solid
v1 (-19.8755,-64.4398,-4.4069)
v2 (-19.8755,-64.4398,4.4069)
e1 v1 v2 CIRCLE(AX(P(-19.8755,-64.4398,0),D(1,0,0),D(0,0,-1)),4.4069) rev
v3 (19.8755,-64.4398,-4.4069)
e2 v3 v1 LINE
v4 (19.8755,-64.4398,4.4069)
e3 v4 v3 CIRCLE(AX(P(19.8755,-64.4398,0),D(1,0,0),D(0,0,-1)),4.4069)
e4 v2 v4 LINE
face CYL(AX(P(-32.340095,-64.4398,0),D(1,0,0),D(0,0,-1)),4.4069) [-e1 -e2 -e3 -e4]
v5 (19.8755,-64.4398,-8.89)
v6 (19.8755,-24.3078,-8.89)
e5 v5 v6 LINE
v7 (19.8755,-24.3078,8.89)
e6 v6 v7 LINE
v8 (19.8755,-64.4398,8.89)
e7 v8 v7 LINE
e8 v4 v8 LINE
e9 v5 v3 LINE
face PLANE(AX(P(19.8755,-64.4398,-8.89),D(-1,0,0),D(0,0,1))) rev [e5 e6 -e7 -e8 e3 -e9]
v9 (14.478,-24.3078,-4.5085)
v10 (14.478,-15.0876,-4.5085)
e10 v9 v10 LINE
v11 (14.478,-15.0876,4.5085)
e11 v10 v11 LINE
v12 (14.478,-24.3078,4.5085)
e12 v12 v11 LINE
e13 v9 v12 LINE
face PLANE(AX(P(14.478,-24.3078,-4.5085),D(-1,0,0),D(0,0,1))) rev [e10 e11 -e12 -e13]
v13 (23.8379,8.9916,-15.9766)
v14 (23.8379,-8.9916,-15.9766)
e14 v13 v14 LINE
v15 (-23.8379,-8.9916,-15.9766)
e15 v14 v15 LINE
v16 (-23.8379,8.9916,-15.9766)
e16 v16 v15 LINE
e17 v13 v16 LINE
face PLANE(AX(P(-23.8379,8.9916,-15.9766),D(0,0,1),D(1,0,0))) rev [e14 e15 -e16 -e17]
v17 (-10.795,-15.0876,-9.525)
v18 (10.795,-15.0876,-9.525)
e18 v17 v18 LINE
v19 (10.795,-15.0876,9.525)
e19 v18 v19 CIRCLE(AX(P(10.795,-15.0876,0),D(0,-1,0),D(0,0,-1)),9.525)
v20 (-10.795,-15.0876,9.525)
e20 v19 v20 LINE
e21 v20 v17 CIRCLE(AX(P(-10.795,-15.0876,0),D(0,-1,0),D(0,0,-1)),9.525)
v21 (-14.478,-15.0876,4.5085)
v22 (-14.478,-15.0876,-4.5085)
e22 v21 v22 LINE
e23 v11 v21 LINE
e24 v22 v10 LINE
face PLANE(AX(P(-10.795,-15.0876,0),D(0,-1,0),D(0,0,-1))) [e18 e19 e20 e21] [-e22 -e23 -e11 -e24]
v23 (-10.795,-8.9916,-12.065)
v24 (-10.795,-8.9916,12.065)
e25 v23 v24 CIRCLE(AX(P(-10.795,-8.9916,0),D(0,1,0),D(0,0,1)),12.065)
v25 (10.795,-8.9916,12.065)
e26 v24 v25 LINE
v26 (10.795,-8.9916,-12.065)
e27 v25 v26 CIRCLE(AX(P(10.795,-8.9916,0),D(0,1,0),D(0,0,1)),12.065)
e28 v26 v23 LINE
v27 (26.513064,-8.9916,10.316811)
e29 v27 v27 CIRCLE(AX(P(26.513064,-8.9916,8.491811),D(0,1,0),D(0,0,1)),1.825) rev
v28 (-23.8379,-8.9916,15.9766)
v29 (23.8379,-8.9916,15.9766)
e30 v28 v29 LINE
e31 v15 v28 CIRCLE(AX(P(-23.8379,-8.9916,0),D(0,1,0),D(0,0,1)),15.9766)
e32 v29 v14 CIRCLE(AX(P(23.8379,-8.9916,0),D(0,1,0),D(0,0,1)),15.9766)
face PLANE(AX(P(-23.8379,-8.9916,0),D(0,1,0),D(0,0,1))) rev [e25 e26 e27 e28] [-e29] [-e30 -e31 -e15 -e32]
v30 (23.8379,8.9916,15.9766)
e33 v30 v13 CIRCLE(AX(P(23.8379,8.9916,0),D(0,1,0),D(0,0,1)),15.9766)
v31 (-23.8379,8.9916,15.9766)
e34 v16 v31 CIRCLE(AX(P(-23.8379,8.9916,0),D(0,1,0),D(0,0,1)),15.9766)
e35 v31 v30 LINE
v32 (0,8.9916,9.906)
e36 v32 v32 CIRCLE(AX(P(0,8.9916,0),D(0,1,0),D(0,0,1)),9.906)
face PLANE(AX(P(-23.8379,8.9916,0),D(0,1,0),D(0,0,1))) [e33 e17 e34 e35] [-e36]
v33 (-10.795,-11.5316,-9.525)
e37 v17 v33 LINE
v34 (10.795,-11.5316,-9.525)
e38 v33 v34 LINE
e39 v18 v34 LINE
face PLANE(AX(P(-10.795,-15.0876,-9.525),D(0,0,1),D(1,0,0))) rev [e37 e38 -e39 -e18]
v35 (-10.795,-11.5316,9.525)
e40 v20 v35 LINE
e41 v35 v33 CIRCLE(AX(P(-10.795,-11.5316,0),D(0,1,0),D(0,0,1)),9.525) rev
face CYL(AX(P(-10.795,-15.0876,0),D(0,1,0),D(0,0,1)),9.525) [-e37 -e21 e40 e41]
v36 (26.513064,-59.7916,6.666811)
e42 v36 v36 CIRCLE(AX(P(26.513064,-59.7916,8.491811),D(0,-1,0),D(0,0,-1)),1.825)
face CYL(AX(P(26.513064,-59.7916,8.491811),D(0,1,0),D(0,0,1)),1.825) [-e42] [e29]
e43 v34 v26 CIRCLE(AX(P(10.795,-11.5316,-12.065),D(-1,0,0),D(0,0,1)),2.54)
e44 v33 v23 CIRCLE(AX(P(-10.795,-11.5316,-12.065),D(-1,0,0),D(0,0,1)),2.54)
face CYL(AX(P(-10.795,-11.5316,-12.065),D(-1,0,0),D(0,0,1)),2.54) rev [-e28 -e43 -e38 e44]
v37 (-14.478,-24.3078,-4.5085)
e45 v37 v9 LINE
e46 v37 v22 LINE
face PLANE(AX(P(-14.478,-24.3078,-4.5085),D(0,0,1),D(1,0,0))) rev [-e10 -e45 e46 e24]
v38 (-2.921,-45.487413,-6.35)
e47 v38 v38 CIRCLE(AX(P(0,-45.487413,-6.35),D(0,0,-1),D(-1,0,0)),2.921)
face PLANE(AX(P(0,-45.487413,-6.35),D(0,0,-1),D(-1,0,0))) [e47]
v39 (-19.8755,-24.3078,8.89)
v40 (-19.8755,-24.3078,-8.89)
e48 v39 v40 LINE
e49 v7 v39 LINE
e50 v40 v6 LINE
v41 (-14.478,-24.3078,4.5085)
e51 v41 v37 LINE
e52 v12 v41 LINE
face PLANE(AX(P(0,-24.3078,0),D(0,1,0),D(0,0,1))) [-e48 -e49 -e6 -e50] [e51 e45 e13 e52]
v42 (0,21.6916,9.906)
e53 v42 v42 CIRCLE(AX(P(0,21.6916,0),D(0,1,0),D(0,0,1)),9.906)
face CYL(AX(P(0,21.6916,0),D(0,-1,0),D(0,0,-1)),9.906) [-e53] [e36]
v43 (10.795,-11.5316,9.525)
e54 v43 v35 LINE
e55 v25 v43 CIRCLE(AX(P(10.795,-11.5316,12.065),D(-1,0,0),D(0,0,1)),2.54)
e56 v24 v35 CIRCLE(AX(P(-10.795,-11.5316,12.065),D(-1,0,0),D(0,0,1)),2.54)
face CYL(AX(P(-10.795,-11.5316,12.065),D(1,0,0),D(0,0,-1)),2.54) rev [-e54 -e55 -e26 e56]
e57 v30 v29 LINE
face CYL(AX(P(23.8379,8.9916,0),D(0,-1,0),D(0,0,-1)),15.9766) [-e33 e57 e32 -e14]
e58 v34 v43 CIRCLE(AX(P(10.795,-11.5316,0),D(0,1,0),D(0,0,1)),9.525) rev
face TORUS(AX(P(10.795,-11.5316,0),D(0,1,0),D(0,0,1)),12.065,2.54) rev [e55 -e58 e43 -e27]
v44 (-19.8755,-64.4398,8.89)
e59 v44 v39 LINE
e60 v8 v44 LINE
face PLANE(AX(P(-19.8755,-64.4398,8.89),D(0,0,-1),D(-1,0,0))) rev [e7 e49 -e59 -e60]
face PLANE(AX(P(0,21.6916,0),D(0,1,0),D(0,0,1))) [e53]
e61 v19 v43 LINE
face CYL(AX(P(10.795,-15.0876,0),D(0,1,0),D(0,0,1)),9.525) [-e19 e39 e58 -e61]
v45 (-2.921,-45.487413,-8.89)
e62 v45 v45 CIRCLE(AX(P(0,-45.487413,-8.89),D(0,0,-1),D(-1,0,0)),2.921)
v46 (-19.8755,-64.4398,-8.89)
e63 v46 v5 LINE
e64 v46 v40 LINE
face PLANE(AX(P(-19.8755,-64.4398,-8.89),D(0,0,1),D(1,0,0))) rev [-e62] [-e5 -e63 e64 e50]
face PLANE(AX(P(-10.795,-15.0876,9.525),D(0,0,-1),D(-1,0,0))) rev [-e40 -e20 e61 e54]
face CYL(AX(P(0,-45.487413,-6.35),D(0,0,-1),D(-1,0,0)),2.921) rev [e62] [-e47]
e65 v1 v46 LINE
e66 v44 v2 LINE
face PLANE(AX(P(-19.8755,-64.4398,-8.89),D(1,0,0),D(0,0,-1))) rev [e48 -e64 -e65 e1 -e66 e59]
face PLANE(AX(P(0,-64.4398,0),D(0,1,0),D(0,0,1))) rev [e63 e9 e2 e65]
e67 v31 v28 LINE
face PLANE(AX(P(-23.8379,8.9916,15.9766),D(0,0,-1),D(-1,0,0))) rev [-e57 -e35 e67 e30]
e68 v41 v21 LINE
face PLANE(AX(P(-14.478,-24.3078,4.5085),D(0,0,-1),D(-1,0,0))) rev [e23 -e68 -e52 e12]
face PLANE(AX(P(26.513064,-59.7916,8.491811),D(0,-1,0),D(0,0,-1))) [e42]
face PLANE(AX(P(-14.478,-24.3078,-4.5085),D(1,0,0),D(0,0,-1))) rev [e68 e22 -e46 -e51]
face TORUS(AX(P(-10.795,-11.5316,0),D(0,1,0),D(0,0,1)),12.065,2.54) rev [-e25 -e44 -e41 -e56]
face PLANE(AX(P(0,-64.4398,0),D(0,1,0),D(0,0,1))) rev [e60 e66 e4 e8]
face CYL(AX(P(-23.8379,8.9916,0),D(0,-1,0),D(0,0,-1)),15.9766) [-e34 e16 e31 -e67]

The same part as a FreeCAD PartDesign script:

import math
import FreeCAD as App
import Part
import Sketcher
from FreeCAD import Vector
Q = App.Units.Quantity


def edges_at(feature, points):
    """Names of the edges that pass closest to the given points."""
    edges = feature.Shape.Edges
    near = lambda p: min(range(len(edges)), key=lambda i: edges[i].distToShape(Part.Vertex(*p))[0])
    return sorted({f"Edge{near(p) + 1}" for p in points})


def add_polygon(sketch, points):
    """Adds a closed chain of lines whose ends are joined by coincident constraints."""
    first, n = sketch.GeometryCount, len(points)
    for a, b in zip(points, points[1:] + points[:1]):
        sketch.addGeometry(Part.LineSegment(App.Vector(*a, 0), App.Vector(*b, 0)), False)
    for i in range(n):
        sketch.addConstraint(Sketcher.Constraint("Coincident", first + i, 2, first + (i + 1) % n, 1))

doc = App.newDocument("Part")
params = doc.addObject("Spreadsheet::Sheet", "Params")
for row, (alias, value) in enumerate([
    ("sketch1_radius", "0.629 in"),
    ("sketch1_width", "1.877 in"),
    ("pad1_length", "0.708 in"),
    ("sketch2_diameter", "0.78 in"),
    ("pad2_length", "0.5 in"),
    ("sketch3_radius", "0.375 in"),
    ("sketch3_width", "0.85 in"),
    ("pad3_length", "0.24 in"),
    ("fillet_radius", "0.1 in"),
    ("sketch4_width", "1.14 in"),
    ("sketch4_height", "0.355 in"),
    ("pad4_length", "0.363 in"),
    ("sketch5_height", "0.7 in"),
    ("sketch5_width", "1.565 in"),
    ("pad5_length", "1.58 in"),
    ("sketch6_diameter", "0.347 in"),
    ("pad6_length", "1.565 in"),
    ("sketch7_diameter", "0.23 in"),
    ("pocket1_length", "0.1 in"),
    ("pad7_length", "2 in"),
], start=1):
    params.set(f"A{row}", alias)
    params.set(f"B{row}", "=" + value)
    params.setAlias(f"B{row}", alias)

body = doc.addObject("PartDesign::Body", "Body")

sketch1 = doc.addObject("Sketcher::SketchObject", "Sketch")
body.addObject(sketch1)
sketch1.AttachmentSupport = (doc.XZ_Plane, [""])
sketch1.MapMode = "FlatFace"
sketch1.addGeometry([
    Part.LineSegment(Vector(23.8379, -15.9766, 0), Vector(-23.8379, -15.9766, 0)),
    Part.ArcOfCircle(Part.Circle(Vector(-23.8379, 0, 0), Vector(0, 0, 1), 15.9766), math.radians(90), math.radians(270)),
    Part.LineSegment(Vector(-23.8379, 15.9766, 0), Vector(23.8379, 15.9766, 0)),
    Part.ArcOfCircle(Part.Circle(Vector(23.8379, 0, 0), Vector(0, 0, 1), 15.9766), math.radians(-90), math.radians(90)),
], False)
sketch1.addConstraint([
    Sketcher.Constraint("Tangent", 0, 2, 1, 2),
    Sketcher.Constraint("Tangent", 1, 1, 2, 1),
    Sketcher.Constraint("Tangent", 2, 2, 3, 2),
    Sketcher.Constraint("Tangent", 3, 1, 0, 1),
    Sketcher.Constraint("Horizontal", 0),
    Sketcher.Constraint("Horizontal", 2),
    Sketcher.Constraint("Symmetric", 1, 3, 3, 3, -1, 1),
    Sketcher.Constraint("Radius", 1, Q("0.629 in")),
    Sketcher.Constraint("DistanceX", 0, 2, 0, 1, Q("1.877 in")),
])
sketch1.setExpression("Constraints[7]", "Params.sketch1_radius")
sketch1.setExpression("Constraints[8]", "Params.sketch1_width")
pad1 = doc.addObject("PartDesign::Pad", "Pad")
body.addObject(pad1)
pad1.Profile = sketch1
pad1.setExpression("Length", "Params.pad1_length")
pad1.Midplane = True

sketch2 = doc.addObject("Sketcher::SketchObject", "Sketch001")
body.addObject(sketch2)
sketch2.AttachmentSupport = (doc.XZ_Plane, [""])
sketch2.MapMode = "FlatFace"
sketch2.AttachmentOffset = App.Placement(Vector(0, 0, -0.354 * 25.4), App.Rotation())
sketch2.addGeometry(Part.Circle(Vector(0, 0, 0), Vector(0, 0, 1), 9.906), False)
sketch2.addConstraint([
    Sketcher.Constraint("Coincident", 0, 3, -1, 1),
    Sketcher.Constraint("Diameter", 0, Q("0.78 in")),
])
sketch2.setExpression("Constraints[1]", "Params.sketch2_diameter")
pad2 = doc.addObject("PartDesign::Pad", "Pad001")
body.addObject(pad2)
pad2.Profile = sketch2
pad2.setExpression("Length", "Params.pad2_length")
pad2.Reversed = True

sketch3 = doc.addObject("Sketcher::SketchObject", "Sketch002")
body.addObject(sketch3)
sketch3.AttachmentSupport = (doc.XZ_Plane, [""])
sketch3.MapMode = "FlatFace"
sketch3.AttachmentOffset = App.Placement(Vector(0, 0, 0.354 * 25.4), App.Rotation())
sketch3.addGeometry([
    Part.LineSegment(Vector(10.795, 9.525, 0), Vector(-10.795, 9.525, 0)),
    Part.ArcOfCircle(Part.Circle(Vector(-10.795, 0, 0), Vector(0, 0, 1), 9.525), math.radians(90), math.radians(270)),
    Part.LineSegment(Vector(-10.795, -9.525, 0), Vector(10.795, -9.525, 0)),
    Part.ArcOfCircle(Part.Circle(Vector(10.795, 0, 0), Vector(0, 0, 1), 9.525), math.radians(-90), math.radians(90)),
], False)
sketch3.addConstraint([
    Sketcher.Constraint("Tangent", 0, 2, 1, 1),
    Sketcher.Constraint("Tangent", 1, 2, 2, 1),
    Sketcher.Constraint("Tangent", 2, 2, 3, 1),
    Sketcher.Constraint("Tangent", 3, 2, 0, 1),
    Sketcher.Constraint("Horizontal", 0),
    Sketcher.Constraint("Horizontal", 2),
    Sketcher.Constraint("Symmetric", 1, 3, 3, 3, -1, 1),
    Sketcher.Constraint("Radius", 1, Q("0.375 in")),
    Sketcher.Constraint("DistanceX", 0, 2, 0, 1, Q("0.85 in")),
])
sketch3.setExpression("Constraints[7]", "Params.sketch3_radius")
sketch3.setExpression("Constraints[8]", "Params.sketch3_width")
pad3 = doc.addObject("PartDesign::Pad", "Pad002")
body.addObject(pad3)
pad3.Profile = sketch3
pad3.setExpression("Length", "Params.pad3_length")
doc.recompute()

fillet = doc.addObject("PartDesign::Fillet", "Fillet")
body.addObject(fillet)
fillet.Base = (pad3, edges_at(pad3, [
    (-20.32, -8.992, 0),
    (0, -8.992, -9.525),
    (20.32, -8.992, 0),
    (0, -8.992, 9.525),
]))
fillet.setExpression("Radius", "Params.fillet_radius")

sketch4 = doc.addObject("Sketcher::SketchObject", "Sketch003")
body.addObject(sketch4)
sketch4.AttachmentSupport = (doc.XZ_Plane, [""])
sketch4.MapMode = "FlatFace"
sketch4.AttachmentOffset = App.Placement(Vector(0, 0, 0.594 * 25.4), App.Rotation())
add_polygon(sketch4, [(-14.478, 4.5085), (-14.478, -4.5085), (14.478, -4.5085), (14.478, 4.5085)])
sketch4.addConstraint([
    Sketcher.Constraint("Vertical", 0),
    Sketcher.Constraint("Horizontal", 1),
    Sketcher.Constraint("Vertical", 2),
    Sketcher.Constraint("Horizontal", 3),
    Sketcher.Constraint("Symmetric", 0, 2, 2, 2, -1, 1),
    Sketcher.Constraint("DistanceX", 1, 1, 1, 2, Q("1.14 in")),
    Sketcher.Constraint("DistanceY", 0, 2, 0, 1, Q("0.355 in")),
])
sketch4.setExpression("Constraints[9]", "Params.sketch4_width")
sketch4.setExpression("Constraints[10]", "Params.sketch4_height")
pad4 = doc.addObject("PartDesign::Pad", "Pad003")
body.addObject(pad4)
pad4.Profile = sketch4
pad4.setExpression("Length", "Params.pad4_length")

sketch5 = doc.addObject("Sketcher::SketchObject", "Sketch004")
body.addObject(sketch5)
sketch5.AttachmentSupport = (doc.XZ_Plane, [""])
sketch5.MapMode = "FlatFace"
sketch5.AttachmentOffset = App.Placement(Vector(0, 0, 0.957 * 25.4), App.Rotation())
add_polygon(sketch5, [(-19.8755, 8.89), (-19.8755, -8.89), (19.8755, -8.89), (19.8755, 8.89)])
sketch5.addConstraint([
    Sketcher.Constraint("Vertical", 0),
    Sketcher.Constraint("Horizontal", 1),
    Sketcher.Constraint("Vertical", 2),
    Sketcher.Constraint("Horizontal", 3),
    Sketcher.Constraint("Symmetric", 0, 2, 2, 2, -1, 1),
    Sketcher.Constraint("DistanceY", 0, 2, 0, 1, Q("0.7 in")),
    Sketcher.Constraint("DistanceX", 1, 1, 1, 2, Q("1.565 in")),
])
sketch5.setExpression("Constraints[9]", "Params.sketch5_height")
sketch5.setExpression("Constraints[10]", "Params.sketch5_width")
pad5 = doc.addObject("PartDesign::Pad", "Pad004")
body.addObject(pad5)
pad5.Profile = sketch5
pad5.setExpression("Length", "Params.pad5_length")

sketch6 = doc.addObject("Sketcher::SketchObject", "Sketch005")
body.addObject(sketch6)
sketch6.AttachmentSupport = (doc.YZ_Plane, [""])
sketch6.MapMode = "FlatFace"
sketch6.AttachmentOffset = App.Placement(Vector(0, 0, 0.7825 * 25.4), App.Rotation())
sketch6.addGeometry(Part.Circle(Vector(-64.4398, 0, 0), Vector(0, 0, 1), 4.4069), False)
sketch6.addConstraint([
    Sketcher.Constraint("PointOnObject", 0, 3, -1),
    Sketcher.Constraint("Diameter", 0, Q("0.347 in")),
    Sketcher.Constraint("DistanceX", 0, 3, -1, 1, Q("2.537 in")),
])
sketch6.setExpression("Constraints[1]", "Params.sketch6_diameter")
pad6 = doc.addObject("PartDesign::Pad", "Pad005")
body.addObject(pad6)
pad6.Profile = sketch6
pad6.setExpression("Length", "Params.pad6_length")
pad6.Reversed = True

sketch7 = doc.addObject("Sketcher::SketchObject", "Sketch006")
body.addObject(sketch7)
sketch7.AttachmentSupport = (doc.XY_Plane, [""])
sketch7.MapMode = "FlatFace"
sketch7.AttachmentOffset = App.Placement(Vector(0, 0, -0.35 * 25.4), App.Rotation())
sketch7.addGeometry(Part.Circle(Vector(0, -45.487413, 0), Vector(0, 0, 1), 2.921), False)
sketch7.addConstraint([
    Sketcher.Constraint("PointOnObject", 0, 3, -2),
    Sketcher.Constraint("Diameter", 0, Q("0.23 in")),
    Sketcher.Constraint("DistanceY", 0, 3, -1, 1, Q("45.487413 mm")),
])
sketch7.setExpression("Constraints[1]", "Params.sketch7_diameter")
pocket1 = doc.addObject("PartDesign::Pocket", "Pocket")
body.addObject(pocket1)
pocket1.Profile = sketch7
pocket1.setExpression("Length", "Params.pocket1_length")
pocket1.Reversed = True

sketch8 = doc.addObject("Sketcher::SketchObject", "Sketch007")
body.addObject(sketch8)
sketch8.AttachmentSupport = (doc.XZ_Plane, [""])
sketch8.MapMode = "FlatFace"
sketch8.AttachmentOffset = App.Placement(Vector(0, 0, 0.354 * 25.4), App.Rotation())
sketch8.addGeometry(Part.Circle(Vector(26.513064, 8.491811, 0), Vector(0, 0, 1), 1.825), False)
sketch8.addConstraint([
    Sketcher.Constraint("Diameter", 0, Q("3.65 mm")),
    Sketcher.Constraint("DistanceY", -1, 1, 0, 3, Q("8.491811 mm")),
    Sketcher.Constraint("DistanceX", -1, 1, 0, 3, Q("26.513064 mm")),
])
pad7 = doc.addObject("PartDesign::Pad", "Pad006")
body.addObject(pad7)
pad7.Profile = sketch8
pad7.setExpression("Length", "Params.pad7_length")

doc.recompute()
